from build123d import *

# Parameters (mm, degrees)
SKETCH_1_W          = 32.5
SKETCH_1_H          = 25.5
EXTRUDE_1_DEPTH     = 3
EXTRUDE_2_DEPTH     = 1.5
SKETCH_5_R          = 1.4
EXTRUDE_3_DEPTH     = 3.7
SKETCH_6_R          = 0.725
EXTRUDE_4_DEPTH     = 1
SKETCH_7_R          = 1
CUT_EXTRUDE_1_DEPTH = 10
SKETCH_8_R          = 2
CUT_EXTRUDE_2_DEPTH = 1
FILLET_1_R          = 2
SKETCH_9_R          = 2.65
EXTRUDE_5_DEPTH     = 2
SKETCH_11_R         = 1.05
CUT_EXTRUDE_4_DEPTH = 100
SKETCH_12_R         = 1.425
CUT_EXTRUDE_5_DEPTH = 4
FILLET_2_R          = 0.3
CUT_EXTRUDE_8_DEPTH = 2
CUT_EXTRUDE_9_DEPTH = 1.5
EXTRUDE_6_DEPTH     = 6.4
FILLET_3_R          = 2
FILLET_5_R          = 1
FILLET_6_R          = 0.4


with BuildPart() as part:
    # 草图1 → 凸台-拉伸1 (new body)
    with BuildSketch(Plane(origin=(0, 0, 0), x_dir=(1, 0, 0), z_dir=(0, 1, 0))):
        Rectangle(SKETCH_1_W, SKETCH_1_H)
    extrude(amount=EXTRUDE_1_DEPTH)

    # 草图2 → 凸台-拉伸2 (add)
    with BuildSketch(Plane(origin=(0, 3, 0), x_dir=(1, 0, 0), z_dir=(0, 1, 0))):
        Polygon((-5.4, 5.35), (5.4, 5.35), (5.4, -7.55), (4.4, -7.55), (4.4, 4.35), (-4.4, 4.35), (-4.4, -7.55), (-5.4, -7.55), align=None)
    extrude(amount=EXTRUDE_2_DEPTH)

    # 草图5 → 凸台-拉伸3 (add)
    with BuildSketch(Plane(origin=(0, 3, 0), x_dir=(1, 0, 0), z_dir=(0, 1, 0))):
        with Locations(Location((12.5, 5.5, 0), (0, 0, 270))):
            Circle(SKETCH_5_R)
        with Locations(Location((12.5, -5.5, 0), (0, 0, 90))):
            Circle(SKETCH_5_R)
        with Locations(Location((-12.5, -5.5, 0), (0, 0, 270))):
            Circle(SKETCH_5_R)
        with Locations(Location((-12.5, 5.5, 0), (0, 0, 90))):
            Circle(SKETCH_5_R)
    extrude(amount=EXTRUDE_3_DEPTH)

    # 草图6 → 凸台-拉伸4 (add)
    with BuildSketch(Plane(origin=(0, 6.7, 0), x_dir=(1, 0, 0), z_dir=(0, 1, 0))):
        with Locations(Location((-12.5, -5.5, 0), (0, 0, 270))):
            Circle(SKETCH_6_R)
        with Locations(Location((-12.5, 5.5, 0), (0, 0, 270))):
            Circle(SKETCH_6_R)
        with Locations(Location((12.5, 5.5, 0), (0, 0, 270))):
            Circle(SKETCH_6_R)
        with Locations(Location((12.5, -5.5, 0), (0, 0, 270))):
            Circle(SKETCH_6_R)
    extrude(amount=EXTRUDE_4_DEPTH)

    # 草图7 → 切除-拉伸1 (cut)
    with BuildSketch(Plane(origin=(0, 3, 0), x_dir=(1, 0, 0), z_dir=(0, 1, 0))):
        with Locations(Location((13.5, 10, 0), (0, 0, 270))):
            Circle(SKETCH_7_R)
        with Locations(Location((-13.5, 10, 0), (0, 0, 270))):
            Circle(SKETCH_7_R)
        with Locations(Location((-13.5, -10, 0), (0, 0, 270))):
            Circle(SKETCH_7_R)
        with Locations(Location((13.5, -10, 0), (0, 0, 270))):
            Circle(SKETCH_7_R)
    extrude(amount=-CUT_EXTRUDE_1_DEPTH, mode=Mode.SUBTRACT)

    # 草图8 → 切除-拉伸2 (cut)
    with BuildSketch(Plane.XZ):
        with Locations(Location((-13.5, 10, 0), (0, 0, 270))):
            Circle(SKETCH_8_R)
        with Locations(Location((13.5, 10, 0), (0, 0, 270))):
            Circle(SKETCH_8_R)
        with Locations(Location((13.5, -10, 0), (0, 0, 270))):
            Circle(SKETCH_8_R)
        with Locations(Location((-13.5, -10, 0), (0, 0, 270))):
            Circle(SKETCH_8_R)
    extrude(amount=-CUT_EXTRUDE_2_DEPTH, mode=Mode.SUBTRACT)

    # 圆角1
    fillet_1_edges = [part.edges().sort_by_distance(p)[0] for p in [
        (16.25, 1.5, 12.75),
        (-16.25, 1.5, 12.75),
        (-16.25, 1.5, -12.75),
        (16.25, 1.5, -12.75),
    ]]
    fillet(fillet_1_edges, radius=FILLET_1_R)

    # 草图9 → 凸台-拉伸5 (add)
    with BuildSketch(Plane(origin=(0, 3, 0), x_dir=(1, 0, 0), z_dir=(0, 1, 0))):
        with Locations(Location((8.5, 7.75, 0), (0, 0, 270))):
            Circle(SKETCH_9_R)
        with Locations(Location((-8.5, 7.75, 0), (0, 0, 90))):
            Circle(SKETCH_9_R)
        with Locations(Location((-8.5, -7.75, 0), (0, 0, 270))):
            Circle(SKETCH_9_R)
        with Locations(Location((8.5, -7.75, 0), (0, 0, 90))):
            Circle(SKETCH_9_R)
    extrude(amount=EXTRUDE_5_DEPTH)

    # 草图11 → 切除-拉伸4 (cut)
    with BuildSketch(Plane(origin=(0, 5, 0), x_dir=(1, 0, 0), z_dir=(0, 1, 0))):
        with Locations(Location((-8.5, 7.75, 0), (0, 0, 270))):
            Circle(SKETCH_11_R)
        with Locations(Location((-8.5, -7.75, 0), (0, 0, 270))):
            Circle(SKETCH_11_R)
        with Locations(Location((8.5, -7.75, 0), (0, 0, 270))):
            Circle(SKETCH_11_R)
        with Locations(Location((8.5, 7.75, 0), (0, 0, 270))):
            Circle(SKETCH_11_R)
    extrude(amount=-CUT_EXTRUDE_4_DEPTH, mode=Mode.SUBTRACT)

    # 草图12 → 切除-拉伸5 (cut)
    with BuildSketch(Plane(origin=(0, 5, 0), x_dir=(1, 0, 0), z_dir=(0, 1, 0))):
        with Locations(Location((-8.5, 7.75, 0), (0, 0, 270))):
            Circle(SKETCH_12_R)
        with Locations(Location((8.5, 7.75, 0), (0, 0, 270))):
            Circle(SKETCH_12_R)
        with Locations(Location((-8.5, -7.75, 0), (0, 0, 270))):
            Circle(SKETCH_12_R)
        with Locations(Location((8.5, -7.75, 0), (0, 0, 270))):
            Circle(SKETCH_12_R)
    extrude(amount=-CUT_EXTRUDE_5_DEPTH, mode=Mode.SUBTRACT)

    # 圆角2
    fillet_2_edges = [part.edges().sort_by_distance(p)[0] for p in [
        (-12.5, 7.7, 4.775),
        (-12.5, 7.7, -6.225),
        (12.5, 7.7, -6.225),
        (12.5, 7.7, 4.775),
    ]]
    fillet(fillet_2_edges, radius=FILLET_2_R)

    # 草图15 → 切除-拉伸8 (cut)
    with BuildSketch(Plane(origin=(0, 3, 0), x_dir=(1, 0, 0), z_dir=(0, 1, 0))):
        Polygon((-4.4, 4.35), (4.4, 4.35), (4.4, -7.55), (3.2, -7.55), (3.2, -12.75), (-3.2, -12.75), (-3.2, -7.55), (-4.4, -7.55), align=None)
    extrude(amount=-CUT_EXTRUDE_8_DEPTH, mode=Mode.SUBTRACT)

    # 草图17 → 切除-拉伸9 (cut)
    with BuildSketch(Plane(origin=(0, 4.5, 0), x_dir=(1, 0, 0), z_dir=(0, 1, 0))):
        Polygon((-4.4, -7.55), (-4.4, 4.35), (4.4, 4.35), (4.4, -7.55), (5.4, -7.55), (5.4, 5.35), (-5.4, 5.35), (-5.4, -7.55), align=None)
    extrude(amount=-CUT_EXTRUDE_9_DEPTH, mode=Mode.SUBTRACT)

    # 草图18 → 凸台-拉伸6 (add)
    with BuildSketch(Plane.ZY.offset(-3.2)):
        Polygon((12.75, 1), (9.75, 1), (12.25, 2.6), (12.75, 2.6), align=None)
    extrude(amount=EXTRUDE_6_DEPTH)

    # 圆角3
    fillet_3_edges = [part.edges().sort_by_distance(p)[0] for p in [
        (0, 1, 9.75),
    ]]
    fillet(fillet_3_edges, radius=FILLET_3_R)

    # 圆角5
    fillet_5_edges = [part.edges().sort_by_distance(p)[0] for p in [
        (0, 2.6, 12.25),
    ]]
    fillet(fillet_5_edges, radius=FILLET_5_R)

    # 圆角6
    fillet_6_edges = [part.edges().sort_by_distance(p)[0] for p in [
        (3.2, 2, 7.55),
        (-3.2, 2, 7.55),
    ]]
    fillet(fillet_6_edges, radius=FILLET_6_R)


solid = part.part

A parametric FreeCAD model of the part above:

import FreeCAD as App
import Part
import Sketcher


def edges_at(feature, points):
    """Names of the edges that pass closest to the given points."""
    edges = feature.Shape.Edges
    near = lambda p: min(range(len(edges)), key=lambda i: edges[i].distToShape(Part.Vertex(*p))[0])
    return sorted({f"Edge{near(p) + 1}" for p in points})


def add_polygon(sketch, points):
    """Adds a closed chain of lines whose ends are joined by coincident constraints."""
    first, n = sketch.GeometryCount, len(points)
    for a, b in zip(points, points[1:] + points[:1]):
        sketch.addGeometry(Part.LineSegment(App.Vector(*a, 0), App.Vector(*b, 0)), False)
    for i in range(n):
        sketch.addConstraint(Sketcher.Constraint("Coincident", first + i, 2, first + (i + 1) % n, 1))

doc = App.newDocument("Part")
body = doc.addObject("PartDesign::Body", "Body")

# Sketch on XZ plane
sketch1 = body.newObject("Sketcher::SketchObject", "Sketch")
sketch1.AttachmentSupport = (doc.getObject("XZ_Plane"), [""])
sketch1.MapMode = "FlatFace"
add_polygon(sketch1, [(-16, -13), (-16, 13), (16, 13), (16, -13)])  # lines 0-3
sketch1.addConstraint([
    Sketcher.Constraint("Vertical", 0),
    Sketcher.Constraint("Horizontal", 1),
    Sketcher.Constraint("Vertical", 2),
    Sketcher.Constraint("Horizontal", 3),
    Sketcher.Constraint("Symmetric", 0, 2, 2, 2, -1, 1),
    Sketcher.Constraint("DistanceX", 1, 1, 1, 2, 32.5),
    Sketcher.Constraint("DistanceY", 0, 1, 0, 2, 25.5),
])
pad1 = body.newObject("PartDesign::Pad", "Pad")
pad1.Profile = sketch1
pad1.Length = 3
pad1.Reversed = True

# Sketch on XZ plane
sketch2 = body.newObject("Sketcher::SketchObject", "Sketch001")
sketch2.AttachmentSupport = (doc.getObject("XZ_Plane"), [""])
sketch2.MapMode = "FlatFace"
sketch2.AttachmentOffset = App.Placement(App.Vector(0, 0, -3), App.Rotation())
add_polygon(sketch2, [(5.4, -5.3), (-5.4, -5.3), (-5.4, 7.5), (-4.4, 7.5), (-4.4, -4.3), (4.4, -4.3), (4.4, 7.5), (5.4, 7.5)])  # lines 0-7
sketch2.addConstraint([
    Sketcher.Constraint("Horizontal", 0),
    Sketcher.Constraint("Vertical", 1),
    Sketcher.Constraint("Horizontal", 2),
    Sketcher.Constraint("Vertical", 3),
    Sketcher.Constraint("Horizontal", 4),
    Sketcher.Constraint("Vertical", 5),
    Sketcher.Constraint("Horizontal", 6),
    Sketcher.Constraint("Vertical", 7),
    Sketcher.Constraint("Symmetric", 2, 2, 5, 2, -2),
    Sketcher.Constraint("Equal", 2, 6),
    Sketcher.Constraint("DistanceX", 2, 1, 2, 2, 1.0),
    Sketcher.Constraint("DistanceX", 0, 2, 0, 1, 10.8),
    Sketcher.Constraint("DistanceY", 1, 1, 1, 2, 12.9),
    Sketcher.Constraint("DistanceY", 3, 2, 3, 1, 11.9),
    Sketcher.Constraint("DistanceY", 0, 2, -1, 1, 5.35),
])
pad2 = body.newObject("PartDesign::Pad", "Pad001")
pad2.Profile = sketch2
pad2.Length = 1.5
pad2.Reversed = True

# Sketch on XZ plane
sketch3 = body.newObject("Sketcher::SketchObject", "Sketch002")
sketch3.AttachmentSupport = (doc.getObject("XZ_Plane"), [""])
sketch3.MapMode = "FlatFace"
sketch3.AttachmentOffset = App.Placement(App.Vector(0, 0, -3), App.Rotation())
sketch3.addGeometry([
    Part.Circle(App.Vector(12.5, -5.5, 0), App.Vector(0, 0, 1), 1.4),
    Part.Circle(App.Vector(12.5, 5.5, 0), App.Vector(0, 0, 1), 1.4),
    Part.Circle(App.Vector(-12.5, 5.5, 0), App.Vector(0, 0, 1), 1.4),
    Part.Circle(App.Vector(-12.5, -5.5, 0), App.Vector(0, 0, 1), 1.4),
], False)
sketch3.addConstraint([
    Sketcher.Constraint("Equal", 0, 1),
    Sketcher.Constraint("Equal", 1, 2),
    Sketcher.Constraint("Equal", 2, 3),
    Sketcher.Constraint("Symmetric", 0, 3, 2, 3, -1, 1),
    Sketcher.Constraint("Symmetric", 1, 3, 3, 3, -1, 1),
    Sketcher.Constraint("Symmetric", 1, 3, 2, 3, -2),
    Sketcher.Constraint("Diameter", 0, 2.8),
    Sketcher.Constraint("DistanceY", 0, 3, 1, 3, 11.0),
    Sketcher.Constraint("DistanceX", 2, 3, 1, 3, 25.0),
])
pad3 = body.newObject("PartDesign::Pad", "Pad002")
pad3.Profile = sketch3
pad3.Length = 3.7
pad3.Reversed = True

# Sketch on XZ plane
sketch4 = body.newObject("Sketcher::SketchObject", "Sketch003")
sketch4.AttachmentSupport = (doc.getObject("XZ_Plane"), [""])
sketch4.MapMode = "FlatFace"
sketch4.AttachmentOffset = App.Placement(App.Vector(0, 0, -6.7), App.Rotation())
sketch4.addGeometry([
    Part.Circle(App.Vector(-12.5, 5.5, 0), App.Vector(0, 0, 1), 0.7),
    Part.Circle(App.Vector(-12.5, -5.5, 0), App.Vector(0, 0, 1), 0.7),
    Part.Circle(App.Vector(12.5, -5.5, 0), App.Vector(0, 0, 1), 0.7),
    Part.Circle(App.Vector(12.5, 5.5, 0), App.Vector(0, 0, 1), 0.7),
], False)
sketch4.addConstraint([
    Sketcher.Constraint("Equal", 0, 1),
    Sketcher.Constraint("Equal", 1, 2),
    Sketcher.Constraint("Equal", 2, 3),
    Sketcher.Constraint("Symmetric", 0, 3, 2, 3, -1, 1),
    Sketcher.Constraint("Symmetric", 1, 3, 3, 3, -1, 1),
    Sketcher.Constraint("Symmetric", 1, 3, 2, 3, -2),
    Sketcher.Constraint("Diameter", 0, 1.45),
    Sketcher.Constraint("DistanceY", 1, 3, 0, 3, 11.0),
    Sketcher.Constraint("DistanceX", 1, 3, 2, 3, 25.0),
])
pad4 = body.newObject("PartDesign::Pad", "Pad003")
pad4.Profile = sketch4
pad4.Length = 1
pad4.Reversed = True

# Sketch on XZ plane
sketch5 = body.newObject("Sketcher::SketchObject", "Sketch004")
sketch5.AttachmentSupport = (doc.getObject("XZ_Plane"), [""])
sketch5.MapMode = "FlatFace"
sketch5.AttachmentOffset = App.Placement(App.Vector(0, 0, -3), App.Rotation())
sketch5.addGeometry([
    Part.Circle(App.Vector(13.5, -10, 0), App.Vector(0, 0, 1), 1),
    Part.Circle(App.Vector(-13.5, -10, 0), App.Vector(0, 0, 1), 1),
    Part.Circle(App.Vector(-13.5, 10, 0), App.Vector(0, 0, 1), 1),
    Part.Circle(App.Vector(13.5, 10, 0), App.Vector(0, 0, 1), 1),
], False)
sketch5.addConstraint([
    Sketcher.Constraint("Equal", 0, 1),
    Sketcher.Constraint("Equal", 1, 2),
    Sketcher.Constraint("Equal", 2, 3),
    Sketcher.Constraint("Symmetric", 0, 3, 2, 3, -1, 1),
    Sketcher.Constraint("Symmetric", 1, 3, 3, 3, -1, 1),
    Sketcher.Constraint("Symmetric", 0, 3, 1, 3, -2),
    Sketcher.Constraint("Diameter", 0, 2.0),
    Sketcher.Constraint("DistanceY", 0, 3, -1, 1, 10.0),
    Sketcher.Constraint("DistanceX", 1, 3, 0, 3, 27.0),
])
pocket1 = body.newObject("PartDesign::Pocket", "Pocket")
pocket1.Profile = sketch5
pocket1.Length = 10
pocket1.Reversed = True

# Sketch on XZ plane
sketch6 = body.newObject("Sketcher::SketchObject", "Sketch005")
sketch6.AttachmentSupport = (doc.getObject("XZ_Plane"), [""])
sketch6.MapMode = "FlatFace"
sketch6.addGeometry([
    Part.Circle(App.Vector(-13.5, 10, 0), App.Vector(0, 0, 1), 2),
    Part.Circle(App.Vector(13.5, 10, 0), App.Vector(0, 0, 1), 2),
    Part.Circle(App.Vector(13.5, -10, 0), App.Vector(0, 0, 1), 2),
    Part.Circle(App.Vector(-13.5, -10, 0), App.Vector(0, 0, 1), 2),
], False)
sketch6.addConstraint([
    Sketcher.Constraint("Equal", 0, 1),
    Sketcher.Constraint("Equal", 1, 2),
    Sketcher.Constraint("Equal", 2, 3),
    Sketcher.Constraint("Symmetric", 0, 3, 2, 3, -1, 1),
    Sketcher.Constraint("Symmetric", 1, 3, 3, 3, -1, 1),
    Sketcher.Constraint("Symmetric", 0, 3, 1, 3, -2),
    Sketcher.Constraint("Diameter", 0, 4.0),
    Sketcher.Constraint("DistanceY", -1, 1, 0, 3, 10.0),
    Sketcher.Constraint("DistanceX", 0, 3, 1, 3, 27.0),
])
pocket2 = body.newObject("PartDesign::Pocket", "Pocket001")
pocket2.Profile = sketch6
pocket2.Length = 1
doc.recompute()

fillet = body.newObject("PartDesign::Fillet", "Fillet")
fillet.Base = (pocket2, edges_at(pocket2, [
    (16.25, 1.5, 12.75),
    (-16.25, 1.5, 12.75),
    (-16.25, 1.5, -12.75),
    (16.25, 1.5, -12.75),
]))
fillet.Radius = 2

# Sketch on XZ plane
sketch7 = body.newObject("Sketcher::SketchObject", "Sketch006")
sketch7.AttachmentSupport = (doc.getObject("XZ_Plane"), [""])
sketch7.MapMode = "FlatFace"
sketch7.AttachmentOffset = App.Placement(App.Vector(0, 0, -3), App.Rotation())
sketch7.addGeometry([
    Part.Circle(App.Vector(8.5, -7.8, 0), App.Vector(0, 0, 1), 2.6),
    Part.Circle(App.Vector(-8.5, -7.8, 0), App.Vector(0, 0, 1), 2.6),
    Part.Circle(App.Vector(-8.5, 7.8, 0), App.Vector(0, 0, 1), 2.6),
    Part.Circle(App.Vector(8.5, 7.8, 0), App.Vector(0, 0, 1), 2.6),
], False)
sketch7.addConstraint([
    Sketcher.Constraint("Equal", 0, 1),
    Sketcher.Constraint("Equal", 1, 2),
    Sketcher.Constraint("Equal", 2, 3),
    Sketcher.Constraint("Symmetric", 0, 3, 2, 3, -1, 1),
    Sketcher.Constraint("Symmetric", 1, 3, 3, 3, -1, 1),
    Sketcher.Constraint("Symmetric", 0, 3, 1, 3, -2),
    Sketcher.Constraint("Diameter", 0, 5.3),
    Sketcher.Constraint("DistanceX", 1, 3, 0, 3, 17.0),
    Sketcher.Constraint("DistanceY", 1, 3, 2, 3, 15.5),
])
pad5 = body.newObject("PartDesign::Pad", "Pad004")
pad5.Profile = sketch7
pad5.Length = 2
pad5.Reversed = True

# Sketch on XZ plane
sketch8 = body.newObject("Sketcher::SketchObject", "Sketch007")
sketch8.AttachmentSupport = (doc.getObject("XZ_Plane"), [""])
sketch8.MapMode = "FlatFace"
sketch8.AttachmentOffset = App.Placement(App.Vector(0, 0, -5), App.Rotation())
sketch8.addGeometry([
    Part.Circle(App.Vector(-8.5, -7.8, 0), App.Vector(0, 0, 1), 1.1),
    Part.Circle(App.Vector(-8.5, 7.8, 0), App.Vector(0, 0, 1), 1.1),
    Part.Circle(App.Vector(8.5, 7.8, 0), App.Vector(0, 0, 1), 1.1),
    Part.Circle(App.Vector(8.5, -7.8, 0), App.Vector(0, 0, 1), 1.1),
], False)
sketch8.addConstraint([
    Sketcher.Constraint("Equal", 0, 1),
    Sketcher.Constraint("Equal", 1, 2),
    Sketcher.Constraint("Equal", 2, 3),
    Sketcher.Constraint("Symmetric", 0, 3, 2, 3, -1, 1),
    Sketcher.Constraint("Symmetric", 1, 3, 3, 3, -1, 1),
    Sketcher.Constraint("Symmetric", 1, 3, 2, 3, -2),
    Sketcher.Constraint("Diameter", 0, 2.1),
    Sketcher.Constraint("DistanceX", 1, 3, 2, 3, 17.0),
    Sketcher.Constraint("DistanceY", 0, 3, 1, 3, 15.5),
])
pocket3 = body.newObject("PartDesign::Pocket", "Pocket002")
pocket3.Profile = sketch8
pocket3.Length = 100
pocket3.Reversed = True

# Sketch on XZ plane
sketch9 = body.newObject("Sketcher::SketchObject", "Sketch008")
sketch9.AttachmentSupport = (doc.getObject("XZ_Plane"), [""])
sketch9.MapMode = "FlatFace"
sketch9.AttachmentOffset = App.Placement(App.Vector(0, 0, -5), App.Rotation())
sketch9.addGeometry([
    Part.Circle(App.Vector(-8.5, -7.8, 0), App.Vector(0, 0, 1), 1.4),
    Part.Circle(App.Vector(8.5, -7.8, 0), App.Vector(0, 0, 1), 1.4),
    Part.Circle(App.Vector(-8.5, 7.8, 0), App.Vector(0, 0, 1), 1.4),
    Part.Circle(App.Vector(8.5, 7.8, 0), App.Vector(0, 0, 1), 1.4),
], False)
sketch9.addConstraint([
    Sketcher.Constraint("Equal", 0, 1),
    Sketcher.Constraint("Equal", 1, 2),
    Sketcher.Constraint("Equal", 2, 3),
    Sketcher.Constraint("Symmetric", 1, 3, 2, 3, -1, 1),
    Sketcher.Constraint("Symmetric", 0, 3, 3, 3, -1, 1),
    Sketcher.Constraint("Symmetric", 0, 3, 1, 3, -2),
    Sketcher.Constraint("Diameter", 0, 2.85),
    Sketcher.Constraint("DistanceX", 0, 3, 1, 3, 17.0),
    Sketcher.Constraint("DistanceY", 0, 3, 2, 3, 15.5),
])
pocket4 = body.newObject("PartDesign::Pocket", "Pocket003")
pocket4.Profile = sketch9
pocket4.Length = 4
pocket4.Reversed = True
doc.recompute()

fillet2 = body.newObject("PartDesign::Fillet", "Fillet001")
fillet2.Base = (pocket4, edges_at(pocket4, [
    (-12.5, 7.7, 4.775),
    (-12.5, 7.7, -6.225),
    (12.5, 7.7, -6.225),
    (12.5, 7.7, 4.775),
]))
fillet2.Radius = 0.3

# Sketch on XZ plane
sketch10 = body.newObject("Sketcher::SketchObject", "Sketch009")
sketch10.AttachmentSupport = (doc.getObject("XZ_Plane"), [""])
sketch10.MapMode = "FlatFace"
sketch10.AttachmentOffset = App.Placement(App.Vector(0, 0, -3), App.Rotation())
add_polygon(sketch10, [(4.4, -4.3), (-4.4, -4.3), (-4.4, 7.5), (-3.2, 7.5), (-3.2, 12.8), (3.2, 12.8), (3.2, 7.5), (4.4, 7.5)])  # lines 0-7
sketch10.addConstraint([
    Sketcher.Constraint("Horizontal", 0),
    Sketcher.Constraint("Vertical", 1),
    Sketcher.Constraint("Horizontal", 2),
    Sketcher.Constraint("Vertical", 3),
    Sketcher.Constraint("Horizontal", 4),
    Sketcher.Constraint("Vertical", 5),
    Sketcher.Constraint("Horizontal", 6),
    Sketcher.Constraint("Vertical", 7),
    Sketcher.Constraint("Symmetric", 2, 2, 5, 2, -2),
    Sketcher.Constraint("Equal", 2, 6),
    Sketcher.Constraint("DistanceX", 0, 2, 0, 1, 8.8),
    Sketcher.Constraint("DistanceX", 2, 1, 2, 2, 1.2),
    Sketcher.Constraint("DistanceY", 1, 1, 1, 2, 11.9),
    Sketcher.Constraint("DistanceY", 3, 1, 3, 2, 5.2),
    Sketcher.Constraint("DistanceY", 0, 2, -1, 1, 4.35),
])
pocket5 = body.newObject("PartDesign::Pocket", "Pocket004")
pocket5.Profile = sketch10
pocket5.Length = 2
pocket5.Reversed = True

# Sketch on XZ plane
sketch11 = body.newObject("Sketcher::SketchObject", "Sketch010")
sketch11.AttachmentSupport = (doc.getObject("XZ_Plane"), [""])
sketch11.MapMode = "FlatFace"
sketch11.AttachmentOffset = App.Placement(App.Vector(0, 0, -4.5), App.Rotation())
add_polygon(sketch11, [(-4.4, 7.5), (-4.4, -4.3), (4.4, -4.3), (4.4, 7.5), (5.4, 7.5), (5.4, -5.3), (-5.4, -5.3), (-5.4, 7.5)])  # lines 0-7
sketch11.addConstraint([
    Sketcher.Constraint("Vertical", 0),
    Sketcher.Constraint("Horizontal", 1),
    Sketcher.Constraint("Vertical", 2),
    Sketcher.Constraint("Horizontal", 3),
    Sketcher.Constraint("Vertical", 4),
    Sketcher.Constraint("Horizontal", 5),
    Sketcher.Constraint("Vertical", 6),
    Sketcher.Constraint("Horizontal", 7),
    Sketcher.Constraint("Symmetric", 3, 2, 6, 2, -2),
    Sketcher.Constraint("Equal", 3, 7),
    Sketcher.Constraint("DistanceX", 3, 1, 3, 2, 1.0),
    Sketcher.Constraint("DistanceX", 1, 1, 1, 2, 8.8),
    Sketcher.Constraint("DistanceY", 0, 2, 0, 1, 11.9),
    Sketcher.Constraint("DistanceY", 4, 2, 4, 1, 12.9),
    Sketcher.Constraint("DistanceY", 0, 2, -1, 1, 4.35),
])
pocket6 = body.newObject("PartDesign::Pocket", "Pocket005")
pocket6.Profile = sketch11
pocket6.Length = 1.5
pocket6.Reversed = True

# Sketch on YZ plane
sketch12 = body.newObject("Sketcher::SketchObject", "Sketch011")
sketch12.AttachmentSupport = (doc.getObject("YZ_Plane"), [""])
sketch12.MapMode = "FlatFace"
sketch12.AttachmentOffset = App.Placement(App.Vector(0, 0, 3.2), App.Rotation())
add_polygon(sketch12, [(1, 9.8), (1, 12.8), (2.6, 12.8), (2.6, 12.2)])  # lines 0-3
sketch12.addConstraint([
    Sketcher.Constraint("Vertical", 0),
    Sketcher.Constraint("Horizontal", 1),
    Sketcher.Constraint("Vertical", 2),
    Sketcher.Constraint("DistanceY", 0, 1, 0, 2, 3.0),
    Sketcher.Constraint("DistanceX", 1, 1, 1, 2, 1.6),
    Sketcher.Constraint("DistanceY", 2, 2, 2, 1, 0.5),
    Sketcher.Constraint("DistanceX", -1, 1, 0, 2, 1.0),
    Sketcher.Constraint("DistanceY", -1, 1, 0, 2, 12.75),
])
pad6 = body.newObject("PartDesign::Pad", "Pad005")
pad6.Profile = sketch12
pad6.Length = 6.4
pad6.Reversed = True
doc.recompute()

fillet3 = body.newObject("PartDesign::Fillet", "Fillet002")
fillet3.Base = (pad6, edges_at(pad6, [(0, 1, 9.75)]))
fillet3.Radius = 2
doc.recompute()

fillet4 = body.newObject("PartDesign::Fillet", "Fillet003")
fillet4.Base = (fillet3, edges_at(fillet3, [(0, 2.6, 12.25)]))
fillet4.Radius = 1
doc.recompute()

fillet5 = body.newObject("PartDesign::Fillet", "Fillet004")
fillet5.Base = (fillet4, edges_at(fillet4, [(3.2, 2, 7.55), (-3.2, 2, 7.55)]))
fillet5.Radius = 0.4

doc.recompute()
